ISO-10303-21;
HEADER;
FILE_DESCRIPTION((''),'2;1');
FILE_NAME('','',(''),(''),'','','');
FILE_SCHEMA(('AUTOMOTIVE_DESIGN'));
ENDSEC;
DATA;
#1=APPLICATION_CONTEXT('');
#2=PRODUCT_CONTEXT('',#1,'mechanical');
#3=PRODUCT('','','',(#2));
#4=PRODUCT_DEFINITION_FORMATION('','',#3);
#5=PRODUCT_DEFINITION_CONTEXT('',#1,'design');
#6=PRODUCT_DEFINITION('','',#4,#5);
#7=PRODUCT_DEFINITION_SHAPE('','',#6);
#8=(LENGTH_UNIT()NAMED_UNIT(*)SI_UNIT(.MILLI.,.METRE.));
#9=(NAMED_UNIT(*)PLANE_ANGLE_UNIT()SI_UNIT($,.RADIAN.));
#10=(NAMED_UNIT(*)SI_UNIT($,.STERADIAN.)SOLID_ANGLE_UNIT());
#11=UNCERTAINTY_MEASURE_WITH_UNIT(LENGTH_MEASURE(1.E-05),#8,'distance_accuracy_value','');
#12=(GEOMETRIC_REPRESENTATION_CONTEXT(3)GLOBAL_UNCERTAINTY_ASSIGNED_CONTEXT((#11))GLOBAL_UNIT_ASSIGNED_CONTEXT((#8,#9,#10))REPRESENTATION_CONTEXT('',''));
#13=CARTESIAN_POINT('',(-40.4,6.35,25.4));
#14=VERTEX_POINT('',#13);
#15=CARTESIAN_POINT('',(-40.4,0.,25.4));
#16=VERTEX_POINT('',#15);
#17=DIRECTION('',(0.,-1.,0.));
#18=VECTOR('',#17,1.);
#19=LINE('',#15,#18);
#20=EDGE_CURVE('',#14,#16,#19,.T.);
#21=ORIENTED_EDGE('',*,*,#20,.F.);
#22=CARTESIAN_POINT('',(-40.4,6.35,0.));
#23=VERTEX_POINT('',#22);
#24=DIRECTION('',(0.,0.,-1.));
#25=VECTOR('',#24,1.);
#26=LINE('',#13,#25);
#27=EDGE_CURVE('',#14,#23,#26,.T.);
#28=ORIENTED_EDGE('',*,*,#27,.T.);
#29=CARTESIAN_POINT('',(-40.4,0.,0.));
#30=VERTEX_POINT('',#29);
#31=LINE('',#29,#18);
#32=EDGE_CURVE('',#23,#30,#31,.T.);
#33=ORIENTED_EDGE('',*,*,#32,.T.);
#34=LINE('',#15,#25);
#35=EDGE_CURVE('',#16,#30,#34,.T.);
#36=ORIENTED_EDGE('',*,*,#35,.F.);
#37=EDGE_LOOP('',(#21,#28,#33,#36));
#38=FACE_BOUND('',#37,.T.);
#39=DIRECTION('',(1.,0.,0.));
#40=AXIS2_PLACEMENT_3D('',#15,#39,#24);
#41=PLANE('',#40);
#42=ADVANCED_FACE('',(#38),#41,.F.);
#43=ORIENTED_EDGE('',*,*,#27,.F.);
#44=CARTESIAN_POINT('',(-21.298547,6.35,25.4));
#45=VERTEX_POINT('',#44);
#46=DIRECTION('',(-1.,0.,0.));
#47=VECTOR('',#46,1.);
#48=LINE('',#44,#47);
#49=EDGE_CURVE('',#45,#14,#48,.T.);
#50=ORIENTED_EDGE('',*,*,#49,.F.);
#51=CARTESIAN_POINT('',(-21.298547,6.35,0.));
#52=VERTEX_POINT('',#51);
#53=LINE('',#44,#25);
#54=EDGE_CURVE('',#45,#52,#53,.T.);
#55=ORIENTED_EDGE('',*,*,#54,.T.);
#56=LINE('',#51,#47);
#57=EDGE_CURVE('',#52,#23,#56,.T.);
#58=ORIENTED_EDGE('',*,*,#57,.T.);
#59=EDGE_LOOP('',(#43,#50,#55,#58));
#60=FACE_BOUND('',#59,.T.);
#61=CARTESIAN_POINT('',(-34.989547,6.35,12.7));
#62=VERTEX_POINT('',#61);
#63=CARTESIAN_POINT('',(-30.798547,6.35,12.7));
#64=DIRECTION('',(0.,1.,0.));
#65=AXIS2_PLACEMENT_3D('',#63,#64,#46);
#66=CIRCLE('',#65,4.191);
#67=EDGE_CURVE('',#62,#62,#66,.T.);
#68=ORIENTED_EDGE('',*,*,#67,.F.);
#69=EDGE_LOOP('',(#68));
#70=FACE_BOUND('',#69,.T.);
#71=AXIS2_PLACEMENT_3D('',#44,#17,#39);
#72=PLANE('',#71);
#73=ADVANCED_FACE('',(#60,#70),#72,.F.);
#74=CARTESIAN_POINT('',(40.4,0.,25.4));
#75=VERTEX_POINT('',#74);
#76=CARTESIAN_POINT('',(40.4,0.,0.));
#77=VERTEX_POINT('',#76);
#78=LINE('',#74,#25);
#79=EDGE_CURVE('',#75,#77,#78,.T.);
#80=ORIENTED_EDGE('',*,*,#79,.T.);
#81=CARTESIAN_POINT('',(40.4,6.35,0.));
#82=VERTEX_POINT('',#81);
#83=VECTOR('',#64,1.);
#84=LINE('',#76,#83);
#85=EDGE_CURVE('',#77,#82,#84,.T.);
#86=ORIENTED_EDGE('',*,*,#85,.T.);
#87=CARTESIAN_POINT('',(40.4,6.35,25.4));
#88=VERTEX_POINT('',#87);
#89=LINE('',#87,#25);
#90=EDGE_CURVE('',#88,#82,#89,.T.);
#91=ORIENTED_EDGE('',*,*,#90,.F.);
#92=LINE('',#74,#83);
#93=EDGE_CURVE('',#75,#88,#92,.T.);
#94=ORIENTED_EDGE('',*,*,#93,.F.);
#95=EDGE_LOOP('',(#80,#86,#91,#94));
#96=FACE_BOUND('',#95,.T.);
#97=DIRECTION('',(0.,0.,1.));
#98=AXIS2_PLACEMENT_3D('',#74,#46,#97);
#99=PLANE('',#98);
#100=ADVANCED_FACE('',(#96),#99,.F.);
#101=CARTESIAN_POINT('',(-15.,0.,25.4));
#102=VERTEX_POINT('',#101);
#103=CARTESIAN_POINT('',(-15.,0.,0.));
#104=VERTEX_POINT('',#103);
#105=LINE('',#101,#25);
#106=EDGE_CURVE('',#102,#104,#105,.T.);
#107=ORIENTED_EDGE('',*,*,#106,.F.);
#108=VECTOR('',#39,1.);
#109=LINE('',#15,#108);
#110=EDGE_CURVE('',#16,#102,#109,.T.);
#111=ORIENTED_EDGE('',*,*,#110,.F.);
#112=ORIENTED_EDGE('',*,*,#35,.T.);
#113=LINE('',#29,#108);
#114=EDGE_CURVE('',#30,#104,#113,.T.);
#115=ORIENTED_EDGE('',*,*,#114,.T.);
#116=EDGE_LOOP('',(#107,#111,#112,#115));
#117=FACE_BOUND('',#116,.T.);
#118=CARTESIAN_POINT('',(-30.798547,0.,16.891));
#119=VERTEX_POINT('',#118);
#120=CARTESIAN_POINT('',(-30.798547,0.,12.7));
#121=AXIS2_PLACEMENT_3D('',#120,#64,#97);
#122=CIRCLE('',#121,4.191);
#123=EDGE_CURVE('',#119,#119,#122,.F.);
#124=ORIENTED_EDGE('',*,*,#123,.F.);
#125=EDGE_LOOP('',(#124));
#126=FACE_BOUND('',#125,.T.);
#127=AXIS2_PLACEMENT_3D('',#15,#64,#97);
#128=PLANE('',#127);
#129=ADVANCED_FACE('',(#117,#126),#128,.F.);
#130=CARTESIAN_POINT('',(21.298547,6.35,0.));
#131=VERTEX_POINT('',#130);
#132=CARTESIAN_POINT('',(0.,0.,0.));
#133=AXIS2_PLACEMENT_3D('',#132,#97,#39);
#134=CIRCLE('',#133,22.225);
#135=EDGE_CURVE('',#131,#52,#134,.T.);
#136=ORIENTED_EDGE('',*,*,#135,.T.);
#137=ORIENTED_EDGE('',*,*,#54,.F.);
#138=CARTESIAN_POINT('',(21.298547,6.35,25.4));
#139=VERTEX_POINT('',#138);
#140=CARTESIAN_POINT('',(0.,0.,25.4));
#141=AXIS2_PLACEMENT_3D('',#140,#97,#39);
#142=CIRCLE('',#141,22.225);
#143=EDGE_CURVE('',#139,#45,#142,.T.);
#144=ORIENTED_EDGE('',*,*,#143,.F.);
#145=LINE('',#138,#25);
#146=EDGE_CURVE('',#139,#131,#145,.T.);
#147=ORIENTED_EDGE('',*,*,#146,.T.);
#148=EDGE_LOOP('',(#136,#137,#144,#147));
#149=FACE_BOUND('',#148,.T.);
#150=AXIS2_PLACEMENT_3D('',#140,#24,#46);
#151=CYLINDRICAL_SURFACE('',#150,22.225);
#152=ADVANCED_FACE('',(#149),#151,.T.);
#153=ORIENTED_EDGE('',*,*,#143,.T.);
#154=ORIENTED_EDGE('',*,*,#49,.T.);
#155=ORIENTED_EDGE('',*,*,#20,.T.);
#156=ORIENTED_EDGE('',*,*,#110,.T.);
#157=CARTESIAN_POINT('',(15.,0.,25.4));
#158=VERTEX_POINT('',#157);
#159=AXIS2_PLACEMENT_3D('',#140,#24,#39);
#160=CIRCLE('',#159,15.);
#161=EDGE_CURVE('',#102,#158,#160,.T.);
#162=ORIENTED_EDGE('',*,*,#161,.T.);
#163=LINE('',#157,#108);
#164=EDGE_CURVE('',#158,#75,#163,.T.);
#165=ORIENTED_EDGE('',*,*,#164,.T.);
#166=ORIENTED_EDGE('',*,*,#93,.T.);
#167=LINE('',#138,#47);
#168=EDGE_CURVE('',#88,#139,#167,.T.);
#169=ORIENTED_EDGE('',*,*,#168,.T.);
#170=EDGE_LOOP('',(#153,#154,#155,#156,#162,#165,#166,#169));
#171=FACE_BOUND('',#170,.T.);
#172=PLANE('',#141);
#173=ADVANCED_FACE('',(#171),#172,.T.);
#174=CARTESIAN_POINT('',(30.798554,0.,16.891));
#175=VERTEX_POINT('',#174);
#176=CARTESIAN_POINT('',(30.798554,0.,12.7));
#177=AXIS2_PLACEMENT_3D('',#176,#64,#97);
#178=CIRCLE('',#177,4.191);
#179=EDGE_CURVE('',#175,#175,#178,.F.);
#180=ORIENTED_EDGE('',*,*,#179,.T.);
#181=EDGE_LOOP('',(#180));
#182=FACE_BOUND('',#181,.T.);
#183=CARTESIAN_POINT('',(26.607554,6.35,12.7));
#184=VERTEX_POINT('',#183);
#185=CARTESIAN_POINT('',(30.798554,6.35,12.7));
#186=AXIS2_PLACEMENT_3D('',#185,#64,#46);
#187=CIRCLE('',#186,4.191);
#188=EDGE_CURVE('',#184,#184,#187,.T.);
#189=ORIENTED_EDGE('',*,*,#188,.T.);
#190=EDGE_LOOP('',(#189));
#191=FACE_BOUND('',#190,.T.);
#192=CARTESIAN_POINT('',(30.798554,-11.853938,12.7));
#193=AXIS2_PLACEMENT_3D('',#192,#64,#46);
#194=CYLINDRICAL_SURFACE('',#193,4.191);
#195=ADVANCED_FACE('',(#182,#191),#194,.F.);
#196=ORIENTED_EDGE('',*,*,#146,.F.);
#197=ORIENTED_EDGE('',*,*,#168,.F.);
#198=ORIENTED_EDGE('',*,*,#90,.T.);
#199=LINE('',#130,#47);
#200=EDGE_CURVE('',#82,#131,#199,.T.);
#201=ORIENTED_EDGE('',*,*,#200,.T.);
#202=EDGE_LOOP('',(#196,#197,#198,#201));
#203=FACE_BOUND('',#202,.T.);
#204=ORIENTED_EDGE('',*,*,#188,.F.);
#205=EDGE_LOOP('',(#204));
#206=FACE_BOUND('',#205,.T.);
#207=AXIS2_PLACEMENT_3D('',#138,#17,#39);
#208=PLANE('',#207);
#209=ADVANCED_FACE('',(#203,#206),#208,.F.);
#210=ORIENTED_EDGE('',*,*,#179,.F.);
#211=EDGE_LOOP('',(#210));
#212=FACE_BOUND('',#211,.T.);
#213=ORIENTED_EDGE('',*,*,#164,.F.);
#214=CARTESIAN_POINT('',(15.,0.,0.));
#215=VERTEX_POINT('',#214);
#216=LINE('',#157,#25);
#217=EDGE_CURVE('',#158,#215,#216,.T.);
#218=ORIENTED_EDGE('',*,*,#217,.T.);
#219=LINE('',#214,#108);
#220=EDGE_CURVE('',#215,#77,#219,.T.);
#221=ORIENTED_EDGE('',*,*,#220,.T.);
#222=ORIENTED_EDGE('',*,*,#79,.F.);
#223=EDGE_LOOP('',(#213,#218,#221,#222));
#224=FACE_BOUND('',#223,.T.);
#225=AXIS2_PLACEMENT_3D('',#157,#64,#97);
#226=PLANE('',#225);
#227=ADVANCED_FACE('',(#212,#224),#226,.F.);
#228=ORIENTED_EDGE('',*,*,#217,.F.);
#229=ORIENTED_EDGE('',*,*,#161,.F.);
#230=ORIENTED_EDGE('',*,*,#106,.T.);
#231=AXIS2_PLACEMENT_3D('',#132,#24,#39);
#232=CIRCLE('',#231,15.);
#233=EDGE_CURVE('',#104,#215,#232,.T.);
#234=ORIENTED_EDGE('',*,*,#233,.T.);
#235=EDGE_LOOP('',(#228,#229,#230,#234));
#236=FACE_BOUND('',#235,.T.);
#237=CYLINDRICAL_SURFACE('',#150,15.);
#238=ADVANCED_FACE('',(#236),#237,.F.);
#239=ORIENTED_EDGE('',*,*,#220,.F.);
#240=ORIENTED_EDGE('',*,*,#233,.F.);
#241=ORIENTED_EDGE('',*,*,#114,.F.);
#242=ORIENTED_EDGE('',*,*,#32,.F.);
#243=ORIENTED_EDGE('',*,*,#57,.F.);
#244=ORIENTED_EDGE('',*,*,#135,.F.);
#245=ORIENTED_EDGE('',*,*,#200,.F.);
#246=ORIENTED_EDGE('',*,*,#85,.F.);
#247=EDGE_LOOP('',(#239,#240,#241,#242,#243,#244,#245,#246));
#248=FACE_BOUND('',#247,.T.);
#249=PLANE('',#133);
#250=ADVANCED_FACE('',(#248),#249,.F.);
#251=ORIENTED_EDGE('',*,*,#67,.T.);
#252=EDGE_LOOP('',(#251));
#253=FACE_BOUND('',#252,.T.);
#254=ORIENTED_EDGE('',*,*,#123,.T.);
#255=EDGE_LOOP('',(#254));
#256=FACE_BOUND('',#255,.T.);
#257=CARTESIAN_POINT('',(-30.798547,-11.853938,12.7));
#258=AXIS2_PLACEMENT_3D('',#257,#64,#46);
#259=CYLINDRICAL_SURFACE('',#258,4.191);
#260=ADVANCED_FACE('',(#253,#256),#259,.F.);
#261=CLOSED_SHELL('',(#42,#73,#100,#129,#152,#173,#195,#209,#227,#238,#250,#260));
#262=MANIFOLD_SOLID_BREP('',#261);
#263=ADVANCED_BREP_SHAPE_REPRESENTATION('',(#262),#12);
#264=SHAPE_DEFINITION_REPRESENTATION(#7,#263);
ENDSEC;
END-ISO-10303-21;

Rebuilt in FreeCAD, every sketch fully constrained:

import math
import FreeCAD as App
import Part
import Sketcher
from FreeCAD import Vector
Q = App.Units.Quantity

doc = App.newDocument("Part")
body = doc.addObject("PartDesign::Body", "Body")

# Sketch on XY plane
sketch1 = body.newObject("Sketcher::SketchObject", "Sketch")
sketch1.AttachmentSupport = (doc.getObject("XY_Plane"), [""])
sketch1.MapMode = "FlatFace"
sketch1.addGeometry([
    Part.LineSegment(Vector(-40.4, 0, 0), Vector(-15, 0, 0)),  # 0
    Part.ArcOfCircle(Part.Circle(Vector(0, 0, 0), Vector(0, 0, 1), 15), math.radians(0), math.radians(180)),  # 1
    Part.LineSegment(Vector(15, 0, 0), Vector(40.4, 0, 0)),  # 2
    Part.LineSegment(Vector(40.4, 0, 0), Vector(40.4, 6.35, 0)),  # 3
    Part.LineSegment(Vector(40.4, 6.35, 0), Vector(21.298547, 6.35, 0)),  # 4
    Part.ArcOfCircle(Part.Circle(Vector(0, 0, 0), Vector(0, 0, 1), 22.225), math.radians(16.60155), math.radians(163.39845)),  # 5
    Part.LineSegment(Vector(-21.298547, 6.35, 0), Vector(-40.4, 6.35, 0)),  # 6
    Part.LineSegment(Vector(-40.4, 6.35, 0), Vector(-40.4, 0, 0)),  # 7
], False)
sketch1.addConstraint([
    Sketcher.Constraint("Coincident", 0, 2, 1, 2),
    Sketcher.Constraint("Coincident", 1, 1, 2, 1),
    Sketcher.Constraint("Coincident", 2, 2, 3, 1),
    Sketcher.Constraint("Coincident", 3, 2, 4, 1),
    Sketcher.Constraint("Coincident", 4, 2, 5, 1),
    Sketcher.Constraint("Coincident", 5, 2, 6, 1),
    Sketcher.Constraint("Coincident", 6, 2, 7, 1),
    Sketcher.Constraint("Coincident", 7, 2, 0, 1),
    Sketcher.Constraint("Horizontal", 0),
    Sketcher.Constraint("Horizontal", 2),
    Sketcher.Constraint("Vertical", 3),
    Sketcher.Constraint("Horizontal", 4),
    Sketcher.Constraint("Horizontal", 6),
    Sketcher.Constraint("Vertical", 7),
    Sketcher.Constraint("Coincident", 1, 3, -1, 1),
    Sketcher.Constraint("Coincident", 5, 3, -1, 1),
    Sketcher.Constraint("Symmetric", 2, 2, 7, 2, -1, 1),
    Sketcher.Constraint("PointOnObject", 0, 2, -1),
    Sketcher.Constraint("Horizontal", 4, 2, 5, 2),
    Sketcher.Constraint("DistanceX", 0, 1, 0, 2, Q("1 in")),
    Sketcher.Constraint("Radius", 5, Q("0.875 in")),
    Sketcher.Constraint("DistanceY", 3, 1, 3, 2, Q("0.25 in")),
    Sketcher.Constraint("Radius", 1, Q("15 mm")),
])
pad1 = body.newObject("PartDesign::Pad", "Pad")
pad1.Profile = sketch1
pad1.Length = Q("1 in")

# Sketch on XZ plane
sketch2 = body.newObject("Sketcher::SketchObject", "Sketch001")
sketch2.AttachmentSupport = (doc.getObject("XZ_Plane"), [""])
sketch2.MapMode = "FlatFace"
sketch2.AttachmentOffset = App.Placement(Vector(0, 0, -0.25 * 25.4), App.Rotation())
sketch2.addGeometry([
    Part.Circle(Vector(-30.798547, 12.7, 0), Vector(0, 0, 1), 4.191),
    Part.Circle(Vector(30.798554, 12.7, 0), Vector(0, 0, 1), 4.191),
], False)
sketch2.addConstraint([
    Sketcher.Constraint("Equal", 0, 1),
    Sketcher.Constraint("Symmetric", 0, 3, 1, 3, -2),
    Sketcher.Constraint("Diameter", 0, Q("0.33 in")),
    Sketcher.Constraint("DistanceY", -1, 1, 0, 3, Q("0.5 in")),
    Sketcher.Constraint("DistanceX", 0, 3, 1, 3, Q("61.597101 mm")),
])
pocket1 = body.newObject("PartDesign::Pocket", "Pocket")
pocket1.Profile = sketch2
pocket1.Length = Q("0.25 in")
pocket1.Reversed = True

doc.recompute()
